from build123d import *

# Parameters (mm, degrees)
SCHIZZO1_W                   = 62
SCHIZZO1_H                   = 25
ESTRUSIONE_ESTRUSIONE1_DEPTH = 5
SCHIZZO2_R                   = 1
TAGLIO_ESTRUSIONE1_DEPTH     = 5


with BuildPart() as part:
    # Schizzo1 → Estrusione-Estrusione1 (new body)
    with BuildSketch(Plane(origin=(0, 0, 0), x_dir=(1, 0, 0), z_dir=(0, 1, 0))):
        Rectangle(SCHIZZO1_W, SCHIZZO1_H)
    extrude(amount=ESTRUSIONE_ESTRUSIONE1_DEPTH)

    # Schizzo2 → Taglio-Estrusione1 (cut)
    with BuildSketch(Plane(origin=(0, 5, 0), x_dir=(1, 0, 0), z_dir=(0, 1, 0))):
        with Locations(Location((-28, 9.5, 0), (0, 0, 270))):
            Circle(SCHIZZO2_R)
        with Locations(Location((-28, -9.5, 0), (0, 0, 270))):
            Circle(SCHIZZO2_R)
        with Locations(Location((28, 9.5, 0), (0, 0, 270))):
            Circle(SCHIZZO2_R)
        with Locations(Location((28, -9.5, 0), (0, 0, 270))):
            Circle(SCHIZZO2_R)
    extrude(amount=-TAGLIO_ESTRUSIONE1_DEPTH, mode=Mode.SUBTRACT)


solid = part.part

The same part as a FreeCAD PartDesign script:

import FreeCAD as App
import Part
import Sketcher

doc = App.newDocument("Part")
body = doc.addObject("PartDesign::Body", "Body")

sketch1 = body.newObject("Sketcher::SketchObject", "Sketch")
sketch1.AttachmentSupport = (doc.getObject("XZ_Plane"), [""])
sketch1.MapMode = "FlatFace"
sketch1.addGeometry([
    Part.LineSegment(App.Vector(-31, -12, 0), App.Vector(-31, 12, 0)),
    Part.LineSegment(App.Vector(-31, 12, 0), App.Vector(31, 12, 0)),
    Part.LineSegment(App.Vector(31, 12, 0), App.Vector(31, -12, 0)),
    Part.LineSegment(App.Vector(31, -12, 0), App.Vector(-31, -12, 0)),
], False)
sketch1.addConstraint([
    Sketcher.Constraint("Coincident", 0, 2, 1, 1),
    Sketcher.Constraint("Coincident", 1, 2, 2, 1),
    Sketcher.Constraint("Coincident", 2, 2, 3, 1),
    Sketcher.Constraint("Coincident", 3, 2, 0, 1),
    Sketcher.Constraint("Vertical", 0),
    Sketcher.Constraint("Horizontal", 1),
    Sketcher.Constraint("Vertical", 2),
    Sketcher.Constraint("Horizontal", 3),
    Sketcher.Constraint("Symmetric", 0, 2, 2, 2, -1, 1),
    Sketcher.Constraint("DistanceX", 1, 1, 1, 2, 62.0),
    Sketcher.Constraint("DistanceY", 0, 1, 0, 2, 25.0),
])
pad1 = body.newObject("PartDesign::Pad", "Pad")
pad1.Profile = sketch1
pad1.Length = 5
pad1.Reversed = True

sketch2 = body.newObject("Sketcher::SketchObject", "Sketch001")
sketch2.AttachmentSupport = (doc.getObject("XZ_Plane"), [""])
sketch2.MapMode = "FlatFace"
sketch2.AttachmentOffset = App.Placement(App.Vector(0, 0, -5), App.Rotation())
sketch2.addGeometry([
    Part.Circle(App.Vector(-28, -9.5, 0), App.Vector(0, 0, 1), 1),
    Part.Circle(App.Vector(-28, 9.5, 0), App.Vector(0, 0, 1), 1),
    Part.Circle(App.Vector(28, -9.5, 0), App.Vector(0, 0, 1), 1),
    Part.Circle(App.Vector(28, 9.5, 0), App.Vector(0, 0, 1), 1),
], False)
sketch2.addConstraint([
    Sketcher.Constraint("Equal", 0, 1),
    Sketcher.Constraint("Equal", 1, 2),
    Sketcher.Constraint("Equal", 2, 3),
    Sketcher.Constraint("Symmetric", 1, 3, 2, 3, -1, 1),
    Sketcher.Constraint("Symmetric", 0, 3, 3, 3, -1, 1),
    Sketcher.Constraint("Symmetric", 0, 3, 2, 3, -2),
    Sketcher.Constraint("Diameter", 0, 2.0),
    Sketcher.Constraint("DistanceX", 0, 3, -1, 1, 28.0),
    Sketcher.Constraint("DistanceY", 0, 3, 1, 3, 19.0),
])
pocket1 = body.newObject("PartDesign::Pocket", "Pocket")
pocket1.Profile = sketch2
pocket1.Length = 5
pocket1.Reversed = True

doc.recompute()
